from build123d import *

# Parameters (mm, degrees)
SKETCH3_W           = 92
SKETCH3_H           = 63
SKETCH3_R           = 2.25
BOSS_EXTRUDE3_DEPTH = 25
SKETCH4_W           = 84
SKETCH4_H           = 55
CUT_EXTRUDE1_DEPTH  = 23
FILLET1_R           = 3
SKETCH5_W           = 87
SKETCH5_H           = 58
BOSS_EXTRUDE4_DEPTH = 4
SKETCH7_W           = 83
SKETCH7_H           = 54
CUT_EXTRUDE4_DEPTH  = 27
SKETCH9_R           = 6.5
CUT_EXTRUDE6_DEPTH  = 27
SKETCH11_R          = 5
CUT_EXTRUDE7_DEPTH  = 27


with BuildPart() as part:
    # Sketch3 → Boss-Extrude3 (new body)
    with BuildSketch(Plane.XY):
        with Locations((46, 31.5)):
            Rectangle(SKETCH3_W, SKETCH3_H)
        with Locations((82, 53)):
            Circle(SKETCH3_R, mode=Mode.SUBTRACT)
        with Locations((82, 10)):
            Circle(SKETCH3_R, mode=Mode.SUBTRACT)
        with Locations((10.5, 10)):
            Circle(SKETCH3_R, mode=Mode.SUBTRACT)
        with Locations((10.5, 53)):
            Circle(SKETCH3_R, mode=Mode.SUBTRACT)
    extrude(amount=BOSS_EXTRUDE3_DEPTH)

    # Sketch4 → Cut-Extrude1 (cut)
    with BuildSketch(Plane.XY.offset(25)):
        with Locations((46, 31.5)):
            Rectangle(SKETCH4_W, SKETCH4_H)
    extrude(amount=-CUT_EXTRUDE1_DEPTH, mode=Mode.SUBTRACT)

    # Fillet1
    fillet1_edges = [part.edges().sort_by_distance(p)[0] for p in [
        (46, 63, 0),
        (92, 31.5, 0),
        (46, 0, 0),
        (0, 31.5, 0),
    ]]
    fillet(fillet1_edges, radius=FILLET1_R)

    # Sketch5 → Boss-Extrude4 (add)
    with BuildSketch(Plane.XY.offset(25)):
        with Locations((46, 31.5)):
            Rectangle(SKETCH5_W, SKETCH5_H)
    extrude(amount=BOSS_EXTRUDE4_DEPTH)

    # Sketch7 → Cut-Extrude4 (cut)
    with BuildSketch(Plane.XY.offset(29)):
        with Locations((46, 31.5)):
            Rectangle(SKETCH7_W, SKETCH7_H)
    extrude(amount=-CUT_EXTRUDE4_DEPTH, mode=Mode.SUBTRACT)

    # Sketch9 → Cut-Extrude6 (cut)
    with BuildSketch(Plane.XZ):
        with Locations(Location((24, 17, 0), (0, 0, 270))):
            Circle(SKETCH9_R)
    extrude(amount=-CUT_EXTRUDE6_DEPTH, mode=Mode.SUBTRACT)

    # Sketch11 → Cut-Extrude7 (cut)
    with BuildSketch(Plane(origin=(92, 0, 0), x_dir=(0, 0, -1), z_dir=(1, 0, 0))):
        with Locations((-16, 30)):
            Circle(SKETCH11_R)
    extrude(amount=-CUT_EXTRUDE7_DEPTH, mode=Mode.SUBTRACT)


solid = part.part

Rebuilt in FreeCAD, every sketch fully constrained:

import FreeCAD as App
import Part
import Sketcher
from FreeCAD import Vector


def edges_at(feature, points):
    """Names of the edges that pass closest to the given points."""
    edges = feature.Shape.Edges
    near = lambda p: min(range(len(edges)), key=lambda i: edges[i].distToShape(Part.Vertex(*p))[0])
    return sorted({f"Edge{near(p) + 1}" for p in points})

doc = App.newDocument("Part")
body = doc.addObject("PartDesign::Body", "Body")

# Sketch on XY plane
sketch1 = body.newObject("Sketcher::SketchObject", "Sketch")
sketch1.AttachmentSupport = (doc.getObject("XY_Plane"), [""])
sketch1.MapMode = "FlatFace"
sketch1.addGeometry([
    Part.LineSegment(Vector(0, 63, 0), Vector(0, 0, 0)),  # 0
    Part.LineSegment(Vector(0, 0, 0), Vector(92, 0, 0)),  # 1
    Part.LineSegment(Vector(92, 0, 0), Vector(92, 63, 0)),  # 2
    Part.LineSegment(Vector(92, 63, 0), Vector(0, 63, 0)),  # 3
    Part.Circle(Vector(10.5, 10, 0), Vector(0, 0, 1), 2.2),  # 4
    Part.Circle(Vector(82, 10, 0), Vector(0, 0, 1), 2.2),  # 5
    Part.Circle(Vector(10.5, 53, 0), Vector(0, 0, 1), 2.2),  # 6
    Part.Circle(Vector(82, 53, 0), Vector(0, 0, 1), 2.2),  # 7
], False)
sketch1.addConstraint([
    Sketcher.Constraint("Coincident", 0, 2, 1, 1),
    Sketcher.Constraint("Coincident", 1, 2, 2, 1),
    Sketcher.Constraint("Coincident", 2, 2, 3, 1),
    Sketcher.Constraint("Coincident", 3, 2, 0, 1),
    Sketcher.Constraint("Vertical", 0),
    Sketcher.Constraint("Horizontal", 1),
    Sketcher.Constraint("Vertical", 2),
    Sketcher.Constraint("Horizontal", 3),
    Sketcher.Constraint("Coincident", 0, 2, -1, 1),
    Sketcher.Constraint("Equal", 4, 5),
    Sketcher.Constraint("Equal", 5, 6),
    Sketcher.Constraint("Equal", 6, 7),
    Sketcher.Constraint("Horizontal", 4, 3, 5, 3),
    Sketcher.Constraint("Horizontal", 6, 3, 7, 3),
    Sketcher.Constraint("Vertical", 4, 3, 6, 3),
    Sketcher.Constraint("Vertical", 5, 3, 7, 3),
    Sketcher.Constraint("Diameter", 4, 4.5),
    Sketcher.Constraint("DistanceX", 1, 1, 1, 2, 92.0),
    Sketcher.Constraint("DistanceY", 0, 2, 0, 1, 63.0),
    Sketcher.Constraint("DistanceY", -1, 1, 4, 3, 10.0),
    Sketcher.Constraint("DistanceX", -1, 1, 5, 3, 82.0),
    Sketcher.Constraint("DistanceY", -1, 1, 6, 3, 53.0),
    Sketcher.Constraint("DistanceX", -1, 1, 4, 3, 10.5),
])
pad1 = body.newObject("PartDesign::Pad", "Pad")
pad1.Profile = sketch1
pad1.Length = 25

# Sketch on XY plane
sketch2 = body.newObject("Sketcher::SketchObject", "Sketch001")
sketch2.AttachmentSupport = (doc.getObject("XY_Plane"), [""])
sketch2.MapMode = "FlatFace"
sketch2.AttachmentOffset = App.Placement(Vector(0, 0, 25), App.Rotation())
sketch2.addGeometry([
    Part.LineSegment(Vector(4, 59, 0), Vector(4, 4, 0)),
    Part.LineSegment(Vector(4, 4, 0), Vector(88, 4, 0)),
    Part.LineSegment(Vector(88, 4, 0), Vector(88, 59, 0)),
    Part.LineSegment(Vector(88, 59, 0), Vector(4, 59, 0)),
], False)
sketch2.addConstraint([
    Sketcher.Constraint("Coincident", 0, 2, 1, 1),
    Sketcher.Constraint("Coincident", 1, 2, 2, 1),
    Sketcher.Constraint("Coincident", 2, 2, 3, 1),
    Sketcher.Constraint("Coincident", 3, 2, 0, 1),
    Sketcher.Constraint("Vertical", 0),
    Sketcher.Constraint("Horizontal", 1),
    Sketcher.Constraint("Vertical", 2),
    Sketcher.Constraint("Horizontal", 3),
    Sketcher.Constraint("DistanceX", 1, 1, 1, 2, 84.0),
    Sketcher.Constraint("DistanceY", 0, 2, 0, 1, 55.0),
    Sketcher.Constraint("DistanceX", -1, 1, 0, 2, 4.0),
    Sketcher.Constraint("DistanceY", -1, 1, 0, 2, 4.0),
])
pocket1 = body.newObject("PartDesign::Pocket", "Pocket")
pocket1.Profile = sketch2
pocket1.Length = 23
doc.recompute()

fillet = body.newObject("PartDesign::Fillet", "Fillet")
fillet.Base = (pocket1, edges_at(pocket1, [
    (46, 63, 0),
    (92, 31.5, 0),
    (46, 0, 0),
    (0, 31.5, 0),
]))
fillet.Radius = 3

# Sketch on XY plane
sketch3 = body.newObject("Sketcher::SketchObject", "Sketch002")
sketch3.AttachmentSupport = (doc.getObject("XY_Plane"), [""])
sketch3.MapMode = "FlatFace"
sketch3.AttachmentOffset = App.Placement(Vector(0, 0, 25), App.Rotation())
sketch3.addGeometry([
    Part.LineSegment(Vector(2, 60, 0), Vector(2, 2, 0)),
    Part.LineSegment(Vector(2, 2, 0), Vector(90, 2, 0)),
    Part.LineSegment(Vector(90, 2, 0), Vector(90, 60, 0)),
    Part.LineSegment(Vector(90, 60, 0), Vector(2, 60, 0)),
], False)
sketch3.addConstraint([
    Sketcher.Constraint("Coincident", 0, 2, 1, 1),
    Sketcher.Constraint("Coincident", 1, 2, 2, 1),
    Sketcher.Constraint("Coincident", 2, 2, 3, 1),
    Sketcher.Constraint("Coincident", 3, 2, 0, 1),
    Sketcher.Constraint("Vertical", 0),
    Sketcher.Constraint("Horizontal", 1),
    Sketcher.Constraint("Vertical", 2),
    Sketcher.Constraint("Horizontal", 3),
    Sketcher.Constraint("DistanceX", 1, 1, 1, 2, 87.0),
    Sketcher.Constraint("DistanceY", 0, 2, 0, 1, 58.0),
    Sketcher.Constraint("DistanceX", -1, 1, 0, 2, 2.5),
    Sketcher.Constraint("DistanceY", -1, 1, 0, 2, 2.5),
])
pad2 = body.newObject("PartDesign::Pad", "Pad001")
pad2.Profile = sketch3
pad2.Length = 4

# Sketch on XY plane
sketch4 = body.newObject("Sketcher::SketchObject", "Sketch003")
sketch4.AttachmentSupport = (doc.getObject("XY_Plane"), [""])
sketch4.MapMode = "FlatFace"
sketch4.AttachmentOffset = App.Placement(Vector(0, 0, 29), App.Rotation())
sketch4.addGeometry([
    Part.LineSegment(Vector(4, 58, 0), Vector(4, 4, 0)),
    Part.LineSegment(Vector(4, 4, 0), Vector(88, 4, 0)),
    Part.LineSegment(Vector(88, 4, 0), Vector(88, 58, 0)),
    Part.LineSegment(Vector(88, 58, 0), Vector(4, 58, 0)),
], False)
sketch4.addConstraint([
    Sketcher.Constraint("Coincident", 0, 2, 1, 1),
    Sketcher.Constraint("Coincident", 1, 2, 2, 1),
    Sketcher.Constraint("Coincident", 2, 2, 3, 1),
    Sketcher.Constraint("Coincident", 3, 2, 0, 1),
    Sketcher.Constraint("Vertical", 0),
    Sketcher.Constraint("Horizontal", 1),
    Sketcher.Constraint("Vertical", 2),
    Sketcher.Constraint("Horizontal", 3),
    Sketcher.Constraint("DistanceX", 1, 1, 1, 2, 83.0),
    Sketcher.Constraint("DistanceY", 0, 2, 0, 1, 54.0),
    Sketcher.Constraint("DistanceX", -1, 1, 0, 2, 4.5),
    Sketcher.Constraint("DistanceY", -1, 1, 0, 2, 4.5),
])
pocket2 = body.newObject("PartDesign::Pocket", "Pocket001")
pocket2.Profile = sketch4
pocket2.Length = 27

# Sketch on XZ plane
sketch5 = body.newObject("Sketcher::SketchObject", "Sketch004")
sketch5.AttachmentSupport = (doc.getObject("XZ_Plane"), [""])
sketch5.MapMode = "FlatFace"
sketch5.addGeometry(Part.Circle(Vector(24, 17, 0), Vector(0, 0, 1), 6), False)
sketch5.addConstraint([
    Sketcher.Constraint("Diameter", 0, 13.0),
    Sketcher.Constraint("DistanceX", -1, 1, 0, 3, 24.0),
    Sketcher.Constraint("DistanceY", -1, 1, 0, 3, 17.0),
])
pocket3 = body.newObject("PartDesign::Pocket", "Pocket002")
pocket3.Profile = sketch5
pocket3.Length = 27

# Sketch on YZ plane
sketch6 = body.newObject("Sketcher::SketchObject", "Sketch005")
sketch6.AttachmentSupport = (doc.getObject("YZ_Plane"), [""])
sketch6.MapMode = "FlatFace"
sketch6.AttachmentOffset = App.Placement(Vector(0, 0, 92), App.Rotation())
sketch6.addGeometry(Part.Circle(Vector(30, 16, 0), Vector(0, 0, 1), 5), False)
sketch6.addConstraint([
    Sketcher.Constraint("Diameter", 0, 10.0),
    Sketcher.Constraint("DistanceX", -1, 1, 0, 3, 30.0),
    Sketcher.Constraint("DistanceY", -1, 1, 0, 3, 16.0),
])
pocket4 = body.newObject("PartDesign::Pocket", "Pocket003")
pocket4.Profile = sketch6
pocket4.Length = 27

doc.recompute()
